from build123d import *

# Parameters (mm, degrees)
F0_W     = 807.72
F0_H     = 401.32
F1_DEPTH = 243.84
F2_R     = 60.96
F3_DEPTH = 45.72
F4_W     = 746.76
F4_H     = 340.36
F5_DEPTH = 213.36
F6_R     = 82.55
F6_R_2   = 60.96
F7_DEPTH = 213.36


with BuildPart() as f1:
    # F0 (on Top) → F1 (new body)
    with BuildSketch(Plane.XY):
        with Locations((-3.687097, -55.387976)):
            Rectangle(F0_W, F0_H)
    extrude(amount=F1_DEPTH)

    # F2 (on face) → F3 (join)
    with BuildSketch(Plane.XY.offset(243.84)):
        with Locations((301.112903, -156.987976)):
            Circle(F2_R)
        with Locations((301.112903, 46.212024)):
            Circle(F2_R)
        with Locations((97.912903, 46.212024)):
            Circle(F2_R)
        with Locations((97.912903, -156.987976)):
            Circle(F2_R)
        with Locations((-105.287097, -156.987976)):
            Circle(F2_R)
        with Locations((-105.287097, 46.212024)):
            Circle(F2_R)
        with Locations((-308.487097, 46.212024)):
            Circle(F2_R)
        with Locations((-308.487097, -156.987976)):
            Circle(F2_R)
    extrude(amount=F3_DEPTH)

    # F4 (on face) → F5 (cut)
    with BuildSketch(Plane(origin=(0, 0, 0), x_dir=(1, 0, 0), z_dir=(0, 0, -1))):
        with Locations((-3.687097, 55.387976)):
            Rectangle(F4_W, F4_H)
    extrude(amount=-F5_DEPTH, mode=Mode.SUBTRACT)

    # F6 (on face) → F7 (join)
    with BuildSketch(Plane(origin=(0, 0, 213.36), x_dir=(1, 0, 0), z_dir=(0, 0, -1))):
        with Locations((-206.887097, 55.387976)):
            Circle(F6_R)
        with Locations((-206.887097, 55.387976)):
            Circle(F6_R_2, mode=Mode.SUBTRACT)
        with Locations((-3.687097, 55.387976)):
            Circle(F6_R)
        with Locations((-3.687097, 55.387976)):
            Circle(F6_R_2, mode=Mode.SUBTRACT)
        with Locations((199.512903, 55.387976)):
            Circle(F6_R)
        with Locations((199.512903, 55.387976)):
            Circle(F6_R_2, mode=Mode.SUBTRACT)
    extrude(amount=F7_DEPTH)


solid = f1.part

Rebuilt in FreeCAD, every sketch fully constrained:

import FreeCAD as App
import Part
import Sketcher
from FreeCAD import Vector
Q = App.Units.Quantity

doc = App.newDocument("Part")
params = doc.addObject("Spreadsheet::Sheet", "Params")
for row, (alias, value) in enumerate([
    ("sketch1_width", "31.8 in"),
    ("sketch1_height", "15.8 in"),
    ("pad1_length", "9.6 in"),
    ("sketch2_diameter", "4.8 in"),
    ("pad2_length", "1.8 in"),
    ("sketch3_width", "29.4 in"),
    ("sketch3_height", "13.4 in"),
    ("pocket1_length", "8.4 in"),
    ("sketch4_diameter", "6.5 in"),
    ("sketch4_diameter2", "4.8 in"),
    ("pad3_length", "8.4 in"),
], start=1):
    params.set(f"A{row}", alias)
    params.set(f"B{row}", "=" + value)
    params.setAlias(f"B{row}", alias)

body = doc.addObject("PartDesign::Body", "Body")

sketch1 = body.newObject("Sketcher::SketchObject", "Sketch")
sketch1.AttachmentSupport = (doc.getObject("XY_Plane"), [""])
sketch1.MapMode = "FlatFace"
sketch1.addGeometry([
    Part.LineSegment(Vector(-408, 145, 0), Vector(-408, -256, 0)),
    Part.LineSegment(Vector(-408, -256, 0), Vector(400, -256, 0)),
    Part.LineSegment(Vector(400, -256, 0), Vector(400, 145, 0)),
    Part.LineSegment(Vector(400, 145, 0), Vector(-408, 145, 0)),
], False)
sketch1.addConstraint([
    Sketcher.Constraint("Coincident", 0, 2, 1, 1),
    Sketcher.Constraint("Coincident", 1, 2, 2, 1),
    Sketcher.Constraint("Coincident", 2, 2, 3, 1),
    Sketcher.Constraint("Coincident", 3, 2, 0, 1),
    Sketcher.Constraint("Vertical", 0),
    Sketcher.Constraint("Horizontal", 1),
    Sketcher.Constraint("Vertical", 2),
    Sketcher.Constraint("Horizontal", 3),
    Sketcher.Constraint("DistanceX", 1, 1, 1, 2, Q("31.8 in")),
    Sketcher.Constraint("DistanceY", 0, 2, 0, 1, Q("15.8 in")),
    Sketcher.Constraint("DistanceX", 0, 2, -1, 1, 407.547097),
    Sketcher.Constraint("DistanceY", 0, 2, -1, 1, 256.047976),
])
sketch1.setExpression("Constraints[8]", "Params.sketch1_width")
sketch1.setExpression("Constraints[9]", "Params.sketch1_height")
pad1 = body.newObject("PartDesign::Pad", "Pad")
pad1.Profile = sketch1
pad1.setExpression("Length", "Params.pad1_length")

sketch2 = body.newObject("Sketcher::SketchObject", "Sketch001")
sketch2.AttachmentSupport = (doc.getObject("XY_Plane"), [""])
sketch2.MapMode = "FlatFace"
sketch2.AttachmentOffset = App.Placement(Vector(0, 0, 9.6 * 25.4), App.Rotation())
sketch2.addGeometry([
    Part.Circle(Vector(301, -157, 0), Vector(0, 0, 1), 61),
    Part.Circle(Vector(301, 46, 0), Vector(0, 0, 1), 61),
    Part.Circle(Vector(98, 46, 0), Vector(0, 0, 1), 61),
    Part.Circle(Vector(98, -157, 0), Vector(0, 0, 1), 61),
    Part.Circle(Vector(-105, -157, 0), Vector(0, 0, 1), 61),
    Part.Circle(Vector(-105, 46, 0), Vector(0, 0, 1), 61),
    Part.Circle(Vector(-308, 46, 0), Vector(0, 0, 1), 61),
    Part.Circle(Vector(-308, -157, 0), Vector(0, 0, 1), 61),
], False)
sketch2.addConstraint([
    Sketcher.Constraint("Equal", 0, 1),
    Sketcher.Constraint("Equal", 1, 2),
    Sketcher.Constraint("Equal", 2, 3),
    Sketcher.Constraint("Equal", 3, 4),
    Sketcher.Constraint("Equal", 4, 5),
    Sketcher.Constraint("Equal", 5, 6),
    Sketcher.Constraint("Equal", 6, 7),
    Sketcher.Constraint("Horizontal", 1, 3, 2, 3),
    Sketcher.Constraint("Horizontal", 0, 3, 3, 3),
    Sketcher.Constraint("Horizontal", 3, 3, 4, 3),
    Sketcher.Constraint("Horizontal", 2, 3, 5, 3),
    Sketcher.Constraint("Horizontal", 5, 3, 6, 3),
    Sketcher.Constraint("Horizontal", 4, 3, 7, 3),
    Sketcher.Constraint("Vertical", 0, 3, 1, 3),
    Sketcher.Constraint("Vertical", 2, 3, 3, 3),
    Sketcher.Constraint("Vertical", 4, 3, 5, 3),
    Sketcher.Constraint("Vertical", 6, 3, 7, 3),
    Sketcher.Constraint("Diameter", 0, Q("4.8 in")),
    Sketcher.Constraint("DistanceY", 0, 3, 1, 3, Q("8 in")),
    Sketcher.Constraint("DistanceX", 2, 3, 1, 3, Q("8 in")),
    Sketcher.Constraint("DistanceX", 4, 3, 3, 3, Q("8 in")),
    Sketcher.Constraint("DistanceX", 6, 3, 5, 3, Q("8 in")),
    Sketcher.Constraint("DistanceX", -1, 1, 0, 3, 301.112903),
    Sketcher.Constraint("DistanceY", 0, 3, -1, 1, 156.987976),
])
sketch2.setExpression("Constraints[17]", "Params.sketch2_diameter")
pad2 = body.newObject("PartDesign::Pad", "Pad001")
pad2.Profile = sketch2
pad2.setExpression("Length", "Params.pad2_length")

sketch3 = body.newObject("Sketcher::SketchObject", "Sketch002")
sketch3.AttachmentSupport = (doc.getObject("XY_Plane"), [""])
sketch3.MapMode = "FlatFace"
sketch3.addGeometry([
    Part.LineSegment(Vector(-377, -226, 0), Vector(-377, 115, 0)),
    Part.LineSegment(Vector(-377, 115, 0), Vector(370, 115, 0)),
    Part.LineSegment(Vector(370, 115, 0), Vector(370, -226, 0)),
    Part.LineSegment(Vector(370, -226, 0), Vector(-377, -226, 0)),
], False)
sketch3.addConstraint([
    Sketcher.Constraint("Coincident", 0, 2, 1, 1),
    Sketcher.Constraint("Coincident", 1, 2, 2, 1),
    Sketcher.Constraint("Coincident", 2, 2, 3, 1),
    Sketcher.Constraint("Coincident", 3, 2, 0, 1),
    Sketcher.Constraint("Vertical", 0),
    Sketcher.Constraint("Horizontal", 1),
    Sketcher.Constraint("Vertical", 2),
    Sketcher.Constraint("Horizontal", 3),
    Sketcher.Constraint("DistanceX", 1, 1, 1, 2, Q("29.4 in")),
    Sketcher.Constraint("DistanceY", 0, 1, 0, 2, Q("13.4 in")),
    Sketcher.Constraint("DistanceX", 0, 2, -1, 1, 377.067097),
    Sketcher.Constraint("DistanceY", -1, 1, 0, 2, 114.792024),
])
sketch3.setExpression("Constraints[8]", "Params.sketch3_width")
sketch3.setExpression("Constraints[9]", "Params.sketch3_height")
pocket1 = body.newObject("PartDesign::Pocket", "Pocket")
pocket1.Profile = sketch3
pocket1.setExpression("Length", "Params.pocket1_length")
pocket1.Reversed = True

sketch4 = body.newObject("Sketcher::SketchObject", "Sketch003")
sketch4.AttachmentSupport = (doc.getObject("XY_Plane"), [""])
sketch4.MapMode = "FlatFace"
sketch4.AttachmentOffset = App.Placement(Vector(0, 0, 8.4 * 25.4), App.Rotation())
sketch4.addGeometry([
    Part.Circle(Vector(-207, -55, 0), Vector(0, 0, 1), 83),
    Part.Circle(Vector(-207, -55, 0), Vector(0, 0, 1), 61),
    Part.Circle(Vector(-4, -55, 0), Vector(0, 0, 1), 83),
    Part.Circle(Vector(-4, -55, 0), Vector(0, 0, 1), 61),
    Part.Circle(Vector(200, -55, 0), Vector(0, 0, 1), 83),
    Part.Circle(Vector(200, -55, 0), Vector(0, 0, 1), 61),
], False)
sketch4.addConstraint([
    Sketcher.Constraint("Coincident", 1, 3, 0, 3),
    Sketcher.Constraint("Coincident", 3, 3, 2, 3),
    Sketcher.Constraint("Coincident", 5, 3, 4, 3),
    Sketcher.Constraint("Equal", 0, 2),
    Sketcher.Constraint("Equal", 1, 3),
    Sketcher.Constraint("Equal", 2, 4),
    Sketcher.Constraint("Equal", 3, 5),
    Sketcher.Constraint("Horizontal", 1, 3, 2, 3),
    Sketcher.Constraint("Horizontal", 3, 3, 4, 3),
    Sketcher.Constraint("Diameter", 0, Q("6.5 in")),
    Sketcher.Constraint("Diameter", 1, Q("4.8 in")),
    Sketcher.Constraint("DistanceX", 0, 3, 2, 3, Q("8 in")),
    Sketcher.Constraint("DistanceX", 2, 3, 4, 3, Q("8 in")),
    Sketcher.Constraint("DistanceX", 0, 3, -1, 1, 206.887097),
    Sketcher.Constraint("DistanceY", 0, 3, -1, 1, 55.387976),
])
sketch4.setExpression("Constraints[9]", "Params.sketch4_diameter")
sketch4.setExpression("Constraints[10]", "Params.sketch4_diameter2")
pad3 = body.newObject("PartDesign::Pad", "Pad002")
pad3.Profile = sketch4
pad3.setExpression("Length", "Params.pad3_length")
pad3.Reversed = True

doc.recompute()
